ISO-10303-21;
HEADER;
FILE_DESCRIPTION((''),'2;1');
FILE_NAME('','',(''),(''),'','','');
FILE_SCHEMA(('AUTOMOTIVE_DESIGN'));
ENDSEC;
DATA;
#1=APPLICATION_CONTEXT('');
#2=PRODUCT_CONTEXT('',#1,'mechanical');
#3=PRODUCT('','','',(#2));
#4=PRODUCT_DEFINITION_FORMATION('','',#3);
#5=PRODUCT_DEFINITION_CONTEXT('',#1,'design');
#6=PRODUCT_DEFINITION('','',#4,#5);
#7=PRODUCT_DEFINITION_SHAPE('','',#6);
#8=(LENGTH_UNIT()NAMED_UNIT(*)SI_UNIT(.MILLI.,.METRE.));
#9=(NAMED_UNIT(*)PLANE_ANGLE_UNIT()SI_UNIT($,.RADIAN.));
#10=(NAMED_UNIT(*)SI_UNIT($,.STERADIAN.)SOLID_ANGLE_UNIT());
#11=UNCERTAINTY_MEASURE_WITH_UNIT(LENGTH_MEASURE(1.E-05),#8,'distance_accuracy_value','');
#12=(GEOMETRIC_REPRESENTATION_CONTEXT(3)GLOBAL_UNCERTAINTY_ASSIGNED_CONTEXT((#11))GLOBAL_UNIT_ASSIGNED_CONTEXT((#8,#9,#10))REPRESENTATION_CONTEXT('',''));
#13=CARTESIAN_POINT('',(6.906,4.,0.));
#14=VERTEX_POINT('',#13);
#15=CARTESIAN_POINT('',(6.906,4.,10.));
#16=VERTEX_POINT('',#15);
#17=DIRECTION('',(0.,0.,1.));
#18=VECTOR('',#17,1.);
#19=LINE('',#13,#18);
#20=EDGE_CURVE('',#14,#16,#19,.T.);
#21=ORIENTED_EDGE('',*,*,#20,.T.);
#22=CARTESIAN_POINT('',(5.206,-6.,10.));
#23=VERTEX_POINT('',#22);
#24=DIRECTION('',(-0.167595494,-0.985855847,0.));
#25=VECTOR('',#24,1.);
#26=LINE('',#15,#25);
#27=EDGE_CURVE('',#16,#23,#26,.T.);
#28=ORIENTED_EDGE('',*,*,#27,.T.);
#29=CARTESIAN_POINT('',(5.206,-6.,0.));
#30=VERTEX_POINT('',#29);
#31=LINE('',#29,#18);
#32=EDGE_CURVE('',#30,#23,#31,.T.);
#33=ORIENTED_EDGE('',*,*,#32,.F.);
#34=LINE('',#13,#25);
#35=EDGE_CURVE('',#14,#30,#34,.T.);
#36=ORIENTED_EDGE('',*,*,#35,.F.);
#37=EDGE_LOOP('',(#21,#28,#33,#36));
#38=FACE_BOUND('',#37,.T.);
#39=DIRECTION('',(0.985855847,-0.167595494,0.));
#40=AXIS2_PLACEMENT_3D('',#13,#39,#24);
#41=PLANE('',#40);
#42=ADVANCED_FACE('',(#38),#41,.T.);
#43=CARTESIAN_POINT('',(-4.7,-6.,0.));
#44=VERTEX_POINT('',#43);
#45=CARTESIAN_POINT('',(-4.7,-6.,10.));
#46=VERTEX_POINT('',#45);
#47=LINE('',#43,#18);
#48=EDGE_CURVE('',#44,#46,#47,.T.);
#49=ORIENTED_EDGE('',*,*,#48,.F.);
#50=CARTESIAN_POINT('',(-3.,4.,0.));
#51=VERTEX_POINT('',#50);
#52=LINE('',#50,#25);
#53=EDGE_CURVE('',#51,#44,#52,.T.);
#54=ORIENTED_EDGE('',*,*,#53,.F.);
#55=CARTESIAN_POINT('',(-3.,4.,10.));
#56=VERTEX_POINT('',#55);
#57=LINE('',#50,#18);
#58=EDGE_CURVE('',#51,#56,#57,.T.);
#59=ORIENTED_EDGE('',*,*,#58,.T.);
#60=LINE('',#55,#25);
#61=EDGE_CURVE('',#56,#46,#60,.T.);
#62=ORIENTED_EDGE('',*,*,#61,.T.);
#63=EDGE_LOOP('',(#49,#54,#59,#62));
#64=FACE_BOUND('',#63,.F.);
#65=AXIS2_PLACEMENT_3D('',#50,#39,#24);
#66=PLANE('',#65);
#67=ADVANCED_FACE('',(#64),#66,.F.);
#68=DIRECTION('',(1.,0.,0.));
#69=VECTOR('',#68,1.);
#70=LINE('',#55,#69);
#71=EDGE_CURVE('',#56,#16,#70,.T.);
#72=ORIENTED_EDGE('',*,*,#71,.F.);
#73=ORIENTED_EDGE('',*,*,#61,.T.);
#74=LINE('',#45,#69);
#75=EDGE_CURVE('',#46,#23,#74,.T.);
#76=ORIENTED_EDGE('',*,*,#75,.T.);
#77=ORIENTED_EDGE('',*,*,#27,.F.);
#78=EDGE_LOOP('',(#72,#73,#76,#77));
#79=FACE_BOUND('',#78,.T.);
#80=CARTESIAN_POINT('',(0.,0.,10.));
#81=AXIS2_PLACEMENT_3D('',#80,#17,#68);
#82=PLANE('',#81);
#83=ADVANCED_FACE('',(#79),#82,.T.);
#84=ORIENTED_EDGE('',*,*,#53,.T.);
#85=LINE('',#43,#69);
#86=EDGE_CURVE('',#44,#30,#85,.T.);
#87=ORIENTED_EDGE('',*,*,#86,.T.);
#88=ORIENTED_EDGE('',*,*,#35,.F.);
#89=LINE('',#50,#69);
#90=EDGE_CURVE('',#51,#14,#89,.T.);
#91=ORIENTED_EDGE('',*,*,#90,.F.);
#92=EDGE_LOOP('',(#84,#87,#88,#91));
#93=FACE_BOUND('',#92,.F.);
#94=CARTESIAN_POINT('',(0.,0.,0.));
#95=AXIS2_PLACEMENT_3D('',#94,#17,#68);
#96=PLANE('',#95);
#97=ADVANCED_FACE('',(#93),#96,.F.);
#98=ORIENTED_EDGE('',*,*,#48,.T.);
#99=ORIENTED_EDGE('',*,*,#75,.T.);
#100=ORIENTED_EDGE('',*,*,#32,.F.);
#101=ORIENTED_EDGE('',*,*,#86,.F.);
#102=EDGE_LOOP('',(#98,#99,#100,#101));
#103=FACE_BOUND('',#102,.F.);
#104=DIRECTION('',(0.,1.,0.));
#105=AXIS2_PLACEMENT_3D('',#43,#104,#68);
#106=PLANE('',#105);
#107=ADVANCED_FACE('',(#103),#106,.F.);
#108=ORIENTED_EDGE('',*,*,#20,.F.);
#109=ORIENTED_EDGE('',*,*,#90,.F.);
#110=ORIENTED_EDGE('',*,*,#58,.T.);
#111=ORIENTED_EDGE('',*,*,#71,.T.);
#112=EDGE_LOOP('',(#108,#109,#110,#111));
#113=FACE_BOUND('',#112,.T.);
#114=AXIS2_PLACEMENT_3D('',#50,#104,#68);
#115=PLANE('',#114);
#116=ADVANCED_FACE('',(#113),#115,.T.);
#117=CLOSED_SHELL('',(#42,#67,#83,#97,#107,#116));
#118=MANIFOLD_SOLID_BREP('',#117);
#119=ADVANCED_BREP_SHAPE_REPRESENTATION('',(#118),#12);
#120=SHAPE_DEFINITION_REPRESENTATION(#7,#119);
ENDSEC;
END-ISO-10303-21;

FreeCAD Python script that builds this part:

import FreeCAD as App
import Part
import Sketcher

V = App.Vector
Q = App.Units.Quantity

doc = App.newDocument("Part")
params = doc.addObject("Spreadsheet::Sheet", "Params")
for row, (alias, value) in enumerate([
    ("sketch1_width", "0.39 in"),
    ("pad1_length", "0.3937008 in"),
], start=1):
    params.set(f"A{row}", alias)
    params.set(f"B{row}", "=" + value)
    params.setAlias(f"B{row}", alias)

body = doc.addObject("PartDesign::Body", "Body")

# Sketch on XY plane
sketch1 = body.newObject("Sketcher::SketchObject", "Sketch")
sketch1.AttachmentSupport = (doc.getObject("XY_Plane"), [""])
sketch1.MapMode = "FlatFace"
sketch1.addGeometry([
    Part.LineSegment(V(-3, 4, 0), V(-5, -6, 0)),
    Part.LineSegment(V(-5, -6, 0), V(5, -6, 0)),
    Part.LineSegment(V(5, -6, 0), V(7, 4, 0)),
    Part.LineSegment(V(7, 4, 0), V(-3, 4, 0)),
], False)
sketch1.addConstraint([
    Sketcher.Constraint("Coincident", 0, 2, 1, 1),
    Sketcher.Constraint("Coincident", 1, 2, 2, 1),
    Sketcher.Constraint("Coincident", 2, 2, 3, 1),
    Sketcher.Constraint("Coincident", 3, 2, 0, 1),
    Sketcher.Constraint("Horizontal", 1),
    Sketcher.Constraint("Horizontal", 3),
    Sketcher.Constraint("Parallel", 0, 2),
    Sketcher.Constraint("DistanceX", 1, 1, 1, 2, Q("0.39 in")),
    Sketcher.Constraint("DistanceY", 1, 2, 2, 2, Q("0.3937 in")),
    Sketcher.Constraint("DistanceX", 1, 2, 2, 2, Q("1.7 mm")),
    Sketcher.Constraint("DistanceX", -1, 1, 2, 2, Q("0.2719 in")),
    Sketcher.Constraint("DistanceY", 0, 2, -1, 1, Q("6 mm")),
])
sketch1.setExpression("Constraints[7]", "Params.sketch1_width")
pad1 = body.newObject("PartDesign::Pad", "Pad")
pad1.Profile = sketch1
pad1.setExpression("Length", "Params.pad1_length")

doc.recompute()
